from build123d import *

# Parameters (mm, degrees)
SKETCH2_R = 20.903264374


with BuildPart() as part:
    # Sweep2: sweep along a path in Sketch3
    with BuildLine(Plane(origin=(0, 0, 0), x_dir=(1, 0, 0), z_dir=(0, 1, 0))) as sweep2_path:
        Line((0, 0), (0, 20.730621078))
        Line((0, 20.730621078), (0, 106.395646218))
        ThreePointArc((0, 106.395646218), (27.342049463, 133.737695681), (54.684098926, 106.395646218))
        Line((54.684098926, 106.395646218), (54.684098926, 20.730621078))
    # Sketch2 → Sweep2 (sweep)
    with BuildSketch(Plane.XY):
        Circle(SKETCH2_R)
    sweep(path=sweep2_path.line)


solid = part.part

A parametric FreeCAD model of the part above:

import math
import FreeCAD as App
import Part
import Sketcher

doc = App.newDocument("Part")
body = doc.addObject("PartDesign::Body", "Body")

# Sketch on XY plane
sketch1 = body.newObject("Sketcher::SketchObject", "Sketch")
sketch1.AttachmentSupport = (doc.getObject("XY_Plane"), [""])
sketch1.MapMode = "FlatFace"
sketch1.addGeometry(Part.Circle(App.Vector(0, 0, 0), App.Vector(0, 0, 1), 20.903264), False)
sketch1.addConstraint(Sketcher.Constraint("Coincident", 0, 3, -1, 1))
sketch1.addConstraint(Sketcher.Constraint("Diameter", 0, 41.806529))

# Sketch on XZ plane
sketch2 = body.newObject("Sketcher::SketchObject", "Sketch001")
sketch2.AttachmentSupport = (doc.getObject("XZ_Plane"), [""])
sketch2.MapMode = "FlatFace"
sketch2.addGeometry(Part.LineSegment(App.Vector(0, 0, 0), App.Vector(0, -106.395646, 0)), False)
sketch2.addGeometry(Part.ArcOfCircle(Part.Circle(App.Vector(27.342049, -106.395646, 0), App.Vector(0, 0, 1), 27.342049), math.radians(180), math.radians(360)), False)
sketch2.addGeometry(Part.LineSegment(App.Vector(54.684099, -106.395646, 0), App.Vector(54.684099, -20.730621, 0)), False)
sketch2.addConstraint(Sketcher.Constraint("Tangent", 0, 2, 1, 1))
sketch2.addConstraint(Sketcher.Constraint("Tangent", 1, 2, 2, 1))
sketch2.addConstraint(Sketcher.Constraint("Vertical", 0))
sketch2.addConstraint(Sketcher.Constraint("Vertical", 2))
sketch2.addConstraint(Sketcher.Constraint("Coincident", 0, 1, -1, 1))
sketch2.addConstraint(Sketcher.Constraint("Radius", 1, 27.342049))
sketch2.addConstraint(Sketcher.Constraint("DistanceY", 0, 2, 0, 1, 106.395646))
sketch2.addConstraint(Sketcher.Constraint("DistanceY", 2, 1, 2, 2, 85.665025))
doc.recompute()

additivepipe = body.newObject("PartDesign::AdditivePipe", "AdditivePipe")
additivepipe.Profile = sketch1
additivepipe.Spine = (sketch2, ["Edge1", "Edge2", "Edge3"])

doc.recompute()
